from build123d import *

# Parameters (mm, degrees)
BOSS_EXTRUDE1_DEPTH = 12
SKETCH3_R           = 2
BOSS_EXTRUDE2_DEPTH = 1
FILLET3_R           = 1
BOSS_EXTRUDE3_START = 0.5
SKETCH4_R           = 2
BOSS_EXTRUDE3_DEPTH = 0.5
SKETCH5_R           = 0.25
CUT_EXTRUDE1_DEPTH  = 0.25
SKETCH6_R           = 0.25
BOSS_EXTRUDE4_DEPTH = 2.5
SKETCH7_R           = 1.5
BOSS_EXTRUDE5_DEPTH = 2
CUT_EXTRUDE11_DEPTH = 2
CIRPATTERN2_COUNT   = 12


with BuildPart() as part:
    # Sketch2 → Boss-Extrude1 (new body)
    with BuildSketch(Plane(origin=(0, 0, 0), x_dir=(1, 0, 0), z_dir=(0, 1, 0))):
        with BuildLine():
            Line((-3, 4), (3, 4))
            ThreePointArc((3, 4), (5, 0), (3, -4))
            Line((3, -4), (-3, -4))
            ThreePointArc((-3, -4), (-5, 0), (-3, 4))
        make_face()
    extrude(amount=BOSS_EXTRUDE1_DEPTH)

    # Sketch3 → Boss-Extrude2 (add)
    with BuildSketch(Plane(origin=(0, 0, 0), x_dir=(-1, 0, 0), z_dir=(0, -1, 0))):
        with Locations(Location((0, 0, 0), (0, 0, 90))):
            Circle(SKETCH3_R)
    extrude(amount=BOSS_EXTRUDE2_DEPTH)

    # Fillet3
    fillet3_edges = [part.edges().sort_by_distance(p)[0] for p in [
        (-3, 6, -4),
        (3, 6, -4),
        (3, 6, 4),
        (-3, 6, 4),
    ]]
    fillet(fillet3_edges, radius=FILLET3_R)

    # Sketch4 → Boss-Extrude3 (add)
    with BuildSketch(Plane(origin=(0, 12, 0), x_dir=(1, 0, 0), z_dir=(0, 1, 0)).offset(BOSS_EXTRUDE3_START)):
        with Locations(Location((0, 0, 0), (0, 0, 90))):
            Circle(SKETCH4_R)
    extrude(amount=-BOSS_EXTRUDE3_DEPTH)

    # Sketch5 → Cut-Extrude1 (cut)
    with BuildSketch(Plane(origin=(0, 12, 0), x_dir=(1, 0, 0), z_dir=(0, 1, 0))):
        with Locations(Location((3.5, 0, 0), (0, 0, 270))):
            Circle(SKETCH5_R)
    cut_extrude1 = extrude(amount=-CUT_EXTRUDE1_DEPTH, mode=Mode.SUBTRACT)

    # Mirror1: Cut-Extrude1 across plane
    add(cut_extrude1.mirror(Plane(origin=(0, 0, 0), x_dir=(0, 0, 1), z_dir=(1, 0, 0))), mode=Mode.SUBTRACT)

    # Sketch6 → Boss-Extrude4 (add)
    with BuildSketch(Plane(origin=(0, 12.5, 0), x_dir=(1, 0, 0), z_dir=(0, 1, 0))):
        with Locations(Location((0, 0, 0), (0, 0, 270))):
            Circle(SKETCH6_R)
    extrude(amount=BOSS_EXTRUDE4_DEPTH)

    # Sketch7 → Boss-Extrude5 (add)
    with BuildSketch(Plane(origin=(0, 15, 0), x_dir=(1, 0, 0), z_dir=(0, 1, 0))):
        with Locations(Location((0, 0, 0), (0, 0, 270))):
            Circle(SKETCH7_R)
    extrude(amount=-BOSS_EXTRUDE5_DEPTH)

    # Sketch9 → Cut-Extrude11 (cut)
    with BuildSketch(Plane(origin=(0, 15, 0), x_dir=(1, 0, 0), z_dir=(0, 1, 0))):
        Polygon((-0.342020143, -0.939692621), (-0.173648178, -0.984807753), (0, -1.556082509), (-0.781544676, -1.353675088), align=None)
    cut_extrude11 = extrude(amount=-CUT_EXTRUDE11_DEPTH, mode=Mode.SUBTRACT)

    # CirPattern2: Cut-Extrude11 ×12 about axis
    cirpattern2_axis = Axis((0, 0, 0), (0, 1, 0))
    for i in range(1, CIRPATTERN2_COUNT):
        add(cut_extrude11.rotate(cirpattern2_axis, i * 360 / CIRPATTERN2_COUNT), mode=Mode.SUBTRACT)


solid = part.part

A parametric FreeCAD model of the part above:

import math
import FreeCAD as App
import Part
import Sketcher
Q = App.Units.Quantity


def edges_at(feature, points):
    """Names of the edges that pass closest to the given points."""
    edges = feature.Shape.Edges
    near = lambda p: min(range(len(edges)), key=lambda i: edges[i].distToShape(Part.Vertex(*p))[0])
    return sorted({f"Edge{near(p) + 1}" for p in points})


def add_polygon(sketch, points):
    """Adds a closed chain of lines whose ends are joined by coincident constraints."""
    first, n = sketch.GeometryCount, len(points)
    for a, b in zip(points, points[1:] + points[:1]):
        sketch.addGeometry(Part.LineSegment(App.Vector(*a, 0), App.Vector(*b, 0)), False)
    for i in range(n):
        sketch.addConstraint(Sketcher.Constraint("Coincident", first + i, 2, first + (i + 1) % n, 1))

doc = App.newDocument("Part")
body = doc.addObject("PartDesign::Body", "Body")

# Sketch on XZ plane
sketch1 = body.newObject("Sketcher::SketchObject", "Sketch")
sketch1.AttachmentSupport = (doc.getObject("XZ_Plane"), [""])
sketch1.MapMode = "FlatFace"
sketch1.addGeometry(Part.LineSegment(App.Vector(3, -4, 0), App.Vector(-3, -4, 0)), False)
sketch1.addGeometry(Part.ArcOfCircle(Part.Circle(App.Vector(0, 0, 0), App.Vector(0, 0, 1), 5), math.radians(126.869898), math.radians(233.130102)), False)
sketch1.addGeometry(Part.LineSegment(App.Vector(-3, 4, 0), App.Vector(3, 4, 0)), False)
sketch1.addGeometry(Part.ArcOfCircle(Part.Circle(App.Vector(0, 0, 0), App.Vector(0, 0, 1), 5), math.radians(-53.130102), math.radians(53.130102)), False)
sketch1.addConstraint(Sketcher.Constraint("Coincident", 0, 2, 1, 2))
sketch1.addConstraint(Sketcher.Constraint("Coincident", 1, 1, 2, 1))
sketch1.addConstraint(Sketcher.Constraint("Coincident", 2, 2, 3, 2))
sketch1.addConstraint(Sketcher.Constraint("Coincident", 3, 1, 0, 1))
sketch1.addConstraint(Sketcher.Constraint("Horizontal", 0))
sketch1.addConstraint(Sketcher.Constraint("Horizontal", 2))
sketch1.addConstraint(Sketcher.Constraint("Coincident", 1, 3, -1, 1))
sketch1.addConstraint(Sketcher.Constraint("Coincident", 3, 3, -1, 1))
sketch1.addConstraint(Sketcher.Constraint("Equal", 1, 3))
sketch1.addConstraint(Sketcher.Constraint("Vertical", 0, 2, 1, 1))
sketch1.addConstraint(Sketcher.Constraint("Radius", 1, 5.0))
sketch1.addConstraint(Sketcher.Constraint("DistanceX", 0, 2, 0, 1, 6.0))
pad1 = body.newObject("PartDesign::Pad", "Pad")
pad1.Profile = sketch1
pad1.Length = 12
pad1.Reversed = True

# Sketch on XZ plane
sketch2 = body.newObject("Sketcher::SketchObject", "Sketch001")
sketch2.AttachmentSupport = (doc.getObject("XZ_Plane"), [""])
sketch2.MapMode = "FlatFace"
sketch2.addGeometry(Part.Circle(App.Vector(0, 0, 0), App.Vector(0, 0, 1), 2), False)
sketch2.addConstraint(Sketcher.Constraint("Coincident", 0, 3, -1, 1))
sketch2.addConstraint(Sketcher.Constraint("Diameter", 0, 4.0))
pad2 = body.newObject("PartDesign::Pad", "Pad001")
pad2.Profile = sketch2
pad2.Length = 1
doc.recompute()

fillet = body.newObject("PartDesign::Fillet", "Fillet")
fillet.Base = (pad2, edges_at(pad2, [
    (-3, 6, -4),
    (3, 6, -4),
    (3, 6, 4),
    (-3, 6, 4),
]))
fillet.Radius = 1

# Sketch on XZ plane
sketch3 = body.newObject("Sketcher::SketchObject", "Sketch002")
sketch3.AttachmentSupport = (doc.getObject("XZ_Plane"), [""])
sketch3.MapMode = "FlatFace"
sketch3.AttachmentOffset = App.Placement(App.Vector(0, 0, -12.5), App.Rotation())
sketch3.addGeometry(Part.Circle(App.Vector(0, 0, 0), App.Vector(0, 0, 1), 2), False)
sketch3.addConstraint(Sketcher.Constraint("Coincident", 0, 3, -1, 1))
sketch3.addConstraint(Sketcher.Constraint("Diameter", 0, 4.0))
pad3 = body.newObject("PartDesign::Pad", "Pad002")
pad3.Profile = sketch3
pad3.Length = 0.5

# Sketch on XZ plane
sketch4 = body.newObject("Sketcher::SketchObject", "Sketch003")
sketch4.AttachmentSupport = (doc.getObject("XZ_Plane"), [""])
sketch4.MapMode = "FlatFace"
sketch4.AttachmentOffset = App.Placement(App.Vector(0, 0, -12), App.Rotation())
sketch4.addGeometry(Part.Circle(App.Vector(3.5, 0, 0), App.Vector(0, 0, 1), 0.25), False)
sketch4.addConstraint(Sketcher.Constraint("PointOnObject", 0, 3, -1))
sketch4.addConstraint(Sketcher.Constraint("Diameter", 0, 0.5))
sketch4.addConstraint(Sketcher.Constraint("DistanceX", -1, 1, 0, 3, 3.5))
pocket1 = body.newObject("PartDesign::Pocket", "Pocket")
pocket1.Profile = sketch4
pocket1.Length = 0.25
pocket1.Reversed = True
doc.recompute()

mirrored = body.newObject("PartDesign::Mirrored", "Mirrored")
mirrored.Originals = [pocket1]
mirrored.MirrorPlane = (doc.getObject("YZ_Plane"), [""])
body.Tip = mirrored

# Sketch on XZ plane
sketch5 = body.newObject("Sketcher::SketchObject", "Sketch004")
sketch5.AttachmentSupport = (doc.getObject("XZ_Plane"), [""])
sketch5.MapMode = "FlatFace"
sketch5.AttachmentOffset = App.Placement(App.Vector(0, 0, -12.5), App.Rotation())
sketch5.addGeometry(Part.Circle(App.Vector(0, 0, 0), App.Vector(0, 0, 1), 0.25), False)
sketch5.addConstraint(Sketcher.Constraint("Coincident", 0, 3, -1, 1))
sketch5.addConstraint(Sketcher.Constraint("Diameter", 0, 0.5))
pad4 = body.newObject("PartDesign::Pad", "Pad003")
pad4.Profile = sketch5
pad4.Length = 2.5
pad4.Reversed = True

# Sketch on XZ plane
sketch6 = body.newObject("Sketcher::SketchObject", "Sketch005")
sketch6.AttachmentSupport = (doc.getObject("XZ_Plane"), [""])
sketch6.MapMode = "FlatFace"
sketch6.AttachmentOffset = App.Placement(App.Vector(0, 0, -15), App.Rotation())
sketch6.addGeometry(Part.Circle(App.Vector(0, 0, 0), App.Vector(0, 0, 1), 1.5), False)
sketch6.addConstraint(Sketcher.Constraint("Coincident", 0, 3, -1, 1))
sketch6.addConstraint(Sketcher.Constraint("Diameter", 0, 3.0))
pad5 = body.newObject("PartDesign::Pad", "Pad004")
pad5.Profile = sketch6
pad5.Length = 2

# Sketch on XZ plane
sketch7 = body.newObject("Sketcher::SketchObject", "Sketch006")
sketch7.AttachmentSupport = (doc.getObject("XZ_Plane"), [""])
sketch7.MapMode = "FlatFace"
sketch7.AttachmentOffset = App.Placement(App.Vector(0, 0, -15), App.Rotation())
add_polygon(sketch7, [(-0.173648, 0.984808), (-0.34202, 0.939693), (-0.781545, 1.353675), (0, 1.556083)])  # lines 0-3
sketch7.addConstraint(Sketcher.Constraint("PointOnObject", 2, 2, -2))
sketch7.addConstraint(Sketcher.Constraint("Angle", 0, Q("-165 deg")))
sketch7.addConstraint(Sketcher.Constraint("Distance", 0, 0.174311))
sketch7.addConstraint(Sketcher.Constraint("Distance", 1, 0.603791))
sketch7.addConstraint(Sketcher.Constraint("Distance", 2, 0.807329))
sketch7.addConstraint(Sketcher.Constraint("DistanceX", 0, 2, -1, 1, 0.34202))
sketch7.addConstraint(Sketcher.Constraint("DistanceY", 0, 2, 2, 2, 0.61639))
sketch7.addConstraint(Sketcher.Constraint("DistanceY", -1, 1, 0, 2, 0.939693))
pocket2 = body.newObject("PartDesign::Pocket", "Pocket001")
pocket2.Profile = sketch7
pocket2.Length = 2
pocket2.Reversed = True
doc.recompute()

polarpattern = body.newObject("PartDesign::PolarPattern", "PolarPattern")
polarpattern.Originals = [pocket2]
polarpattern.Axis = (doc.getObject("Y_Axis"), [""])
polarpattern.Angle = 360
polarpattern.Occurrences = 12
body.Tip = polarpattern

doc.recompute()
